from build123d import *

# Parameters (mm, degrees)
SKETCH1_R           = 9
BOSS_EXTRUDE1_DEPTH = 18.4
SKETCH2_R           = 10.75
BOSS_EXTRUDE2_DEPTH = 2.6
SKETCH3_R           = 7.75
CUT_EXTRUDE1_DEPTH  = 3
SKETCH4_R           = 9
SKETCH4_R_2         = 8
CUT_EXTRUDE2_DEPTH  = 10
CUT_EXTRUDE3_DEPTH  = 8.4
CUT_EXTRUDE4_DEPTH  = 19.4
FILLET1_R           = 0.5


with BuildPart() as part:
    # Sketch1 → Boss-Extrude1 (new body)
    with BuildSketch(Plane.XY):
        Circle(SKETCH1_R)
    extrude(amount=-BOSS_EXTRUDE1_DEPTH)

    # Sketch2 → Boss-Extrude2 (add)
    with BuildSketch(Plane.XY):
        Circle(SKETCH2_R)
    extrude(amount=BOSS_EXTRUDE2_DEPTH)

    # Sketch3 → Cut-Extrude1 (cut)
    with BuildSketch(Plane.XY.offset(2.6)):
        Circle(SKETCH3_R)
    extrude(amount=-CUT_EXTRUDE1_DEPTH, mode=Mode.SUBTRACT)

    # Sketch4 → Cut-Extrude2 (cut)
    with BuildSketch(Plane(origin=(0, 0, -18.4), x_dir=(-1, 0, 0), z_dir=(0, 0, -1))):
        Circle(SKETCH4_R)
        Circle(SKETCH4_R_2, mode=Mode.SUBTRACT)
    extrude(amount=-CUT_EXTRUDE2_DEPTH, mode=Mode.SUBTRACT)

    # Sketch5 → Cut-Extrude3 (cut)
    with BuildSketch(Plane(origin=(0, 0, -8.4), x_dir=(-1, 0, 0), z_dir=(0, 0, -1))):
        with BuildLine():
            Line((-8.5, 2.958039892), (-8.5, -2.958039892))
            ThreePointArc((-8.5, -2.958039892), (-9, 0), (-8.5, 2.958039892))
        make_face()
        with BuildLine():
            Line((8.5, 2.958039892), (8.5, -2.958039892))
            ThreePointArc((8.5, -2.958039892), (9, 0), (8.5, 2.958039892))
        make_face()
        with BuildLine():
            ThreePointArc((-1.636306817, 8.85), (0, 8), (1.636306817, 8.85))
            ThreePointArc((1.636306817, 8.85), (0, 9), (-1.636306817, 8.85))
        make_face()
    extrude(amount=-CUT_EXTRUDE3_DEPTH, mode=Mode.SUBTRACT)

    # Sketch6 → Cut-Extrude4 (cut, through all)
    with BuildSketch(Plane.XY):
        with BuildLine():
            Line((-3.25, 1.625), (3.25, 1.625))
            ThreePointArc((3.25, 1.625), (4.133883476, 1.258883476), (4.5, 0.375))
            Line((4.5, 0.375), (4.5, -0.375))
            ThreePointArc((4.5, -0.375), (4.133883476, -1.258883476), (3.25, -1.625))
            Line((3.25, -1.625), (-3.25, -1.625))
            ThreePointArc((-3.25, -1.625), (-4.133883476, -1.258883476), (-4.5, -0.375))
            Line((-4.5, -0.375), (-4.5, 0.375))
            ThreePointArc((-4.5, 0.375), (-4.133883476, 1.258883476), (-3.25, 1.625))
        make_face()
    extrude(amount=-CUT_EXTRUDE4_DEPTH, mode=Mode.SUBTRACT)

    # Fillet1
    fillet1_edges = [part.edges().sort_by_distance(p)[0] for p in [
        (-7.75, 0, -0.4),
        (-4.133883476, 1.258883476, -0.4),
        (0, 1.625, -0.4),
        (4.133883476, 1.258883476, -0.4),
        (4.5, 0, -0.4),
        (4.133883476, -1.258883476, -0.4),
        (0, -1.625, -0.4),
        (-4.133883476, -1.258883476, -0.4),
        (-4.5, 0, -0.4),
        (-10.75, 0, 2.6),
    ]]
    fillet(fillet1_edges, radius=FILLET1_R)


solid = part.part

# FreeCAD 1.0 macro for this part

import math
import FreeCAD as App
import Part
import Sketcher

V = App.Vector


def edges_at(feature, points):
    """Names of the edges that pass closest to the given points."""
    edges = feature.Shape.Edges
    near = lambda p: min(range(len(edges)), key=lambda i: edges[i].distToShape(Part.Vertex(*p))[0])
    return sorted({f"Edge{near(p) + 1}" for p in points})

doc = App.newDocument("Part")
body = doc.addObject("PartDesign::Body", "Body")

# Sketch on XY plane
sketch1 = body.newObject("Sketcher::SketchObject", "Sketch")
sketch1.AttachmentSupport = (doc.getObject("XY_Plane"), [""])
sketch1.MapMode = "FlatFace"
sketch1.addGeometry(Part.Circle(V(0, 0, 0), V(0, 0, 1), 9), False)
sketch1.addConstraint([
    Sketcher.Constraint("Coincident", 0, 3, -1, 1),
    Sketcher.Constraint("Diameter", 0, 18.0),
])
pad1 = body.newObject("PartDesign::Pad", "Pad")
pad1.Profile = sketch1
pad1.Length = 18.4
pad1.Reversed = True

# Sketch on XY plane
sketch2 = body.newObject("Sketcher::SketchObject", "Sketch001")
sketch2.AttachmentSupport = (doc.getObject("XY_Plane"), [""])
sketch2.MapMode = "FlatFace"
sketch2.addGeometry(Part.Circle(V(0, 0, 0), V(0, 0, 1), 10.75), False)
sketch2.addConstraint([
    Sketcher.Constraint("Coincident", 0, 3, -1, 1),
    Sketcher.Constraint("Diameter", 0, 21.5),
])
pad2 = body.newObject("PartDesign::Pad", "Pad001")
pad2.Profile = sketch2
pad2.Length = 2.6

# Sketch on XY plane
sketch3 = body.newObject("Sketcher::SketchObject", "Sketch002")
sketch3.AttachmentSupport = (doc.getObject("XY_Plane"), [""])
sketch3.MapMode = "FlatFace"
sketch3.AttachmentOffset = App.Placement(V(0, 0, 2.6), App.Rotation())
sketch3.addGeometry(Part.Circle(V(0, 0, 0), V(0, 0, 1), 7.75), False)
sketch3.addConstraint([
    Sketcher.Constraint("Coincident", 0, 3, -1, 1),
    Sketcher.Constraint("Diameter", 0, 15.5),
])
pocket1 = body.newObject("PartDesign::Pocket", "Pocket")
pocket1.Profile = sketch3
pocket1.Length = 3

# Sketch on XY plane
sketch4 = body.newObject("Sketcher::SketchObject", "Sketch003")
sketch4.AttachmentSupport = (doc.getObject("XY_Plane"), [""])
sketch4.MapMode = "FlatFace"
sketch4.AttachmentOffset = App.Placement(V(0, 0, -18.4), App.Rotation())
sketch4.addGeometry([
    Part.Circle(V(0, 0, 0), V(0, 0, 1), 9),
    Part.Circle(V(0, 0, 0), V(0, 0, 1), 8),
], False)
sketch4.addConstraint([
    Sketcher.Constraint("Coincident", 0, 3, -1, 1),
    Sketcher.Constraint("Coincident", 1, 3, -1, 1),
    Sketcher.Constraint("Diameter", 0, 18.0),
    Sketcher.Constraint("Diameter", 1, 16.0),
])
pocket2 = body.newObject("PartDesign::Pocket", "Pocket001")
pocket2.Profile = sketch4
pocket2.Length = 10
pocket2.Reversed = True

# Sketch on XY plane
sketch5 = body.newObject("Sketcher::SketchObject", "Sketch004")
sketch5.AttachmentSupport = (doc.getObject("XY_Plane"), [""])
sketch5.MapMode = "FlatFace"
sketch5.AttachmentOffset = App.Placement(V(0, 0, -8.4), App.Rotation())
sketch5.addGeometry([
    Part.LineSegment(V(8.5, -2.95804, 0), V(8.5, 2.95804, 0)),  # 0
    Part.ArcOfCircle(Part.Circle(V(0, 0, 0), V(0, 0, 1), 9), math.radians(-19.188136), math.radians(19.188136)),  # 1
    Part.LineSegment(V(-8.5, 2.95804, 0), V(-8.5, -2.95804, 0)),  # 2
    Part.ArcOfCircle(Part.Circle(V(0, 0, 0), V(0, 0, 1), 9), math.radians(160.811864), math.radians(199.188136)),  # 3
    Part.ArcOfCircle(Part.Circle(V(0, 10, 0), V(0, 0, 1), 2), math.radians(-144.900368), math.radians(-35.099632)),  # 4
    Part.ArcOfCircle(Part.Circle(V(0, 0, 0), V(0, 0, 1), 9), math.radians(79.524686), math.radians(100.475314)),  # 5
], False)
sketch5.addConstraint([
    Sketcher.Constraint("Coincident", 0, 1, 1, 1),
    Sketcher.Constraint("Coincident", 1, 2, 0, 2),
    Sketcher.Constraint("Coincident", 2, 1, 3, 1),
    Sketcher.Constraint("Coincident", 3, 2, 2, 2),
    Sketcher.Constraint("Coincident", 4, 1, 5, 2),
    Sketcher.Constraint("Coincident", 5, 1, 4, 2),
    Sketcher.Constraint("Vertical", 0),
    Sketcher.Constraint("Vertical", 2),
    Sketcher.Constraint("Coincident", 1, 3, -1, 1),
    Sketcher.Constraint("Coincident", 3, 3, -1, 1),
    Sketcher.Constraint("Coincident", 5, 3, -1, 1),
    Sketcher.Constraint("Equal", 1, 3),
    Sketcher.Constraint("Equal", 3, 5),
    Sketcher.Constraint("PointOnObject", 4, 3, -2),
    Sketcher.Constraint("Horizontal", 1, 2, 2, 1),
    Sketcher.Constraint("Radius", 1, 9.0),
    Sketcher.Constraint("Radius", 4, 2.0),
    Sketcher.Constraint("DistanceY", -1, 1, 4, 3, 10.0),
    Sketcher.Constraint("DistanceX", 2, 1, 1, 2, 17.0),
])
pocket3 = body.newObject("PartDesign::Pocket", "Pocket002")
pocket3.Profile = sketch5
pocket3.Length = 8.4
pocket3.Reversed = True

# Sketch on XY plane
sketch6 = body.newObject("Sketcher::SketchObject", "Sketch005")
sketch6.AttachmentSupport = (doc.getObject("XY_Plane"), [""])
sketch6.MapMode = "FlatFace"
sketch6.addGeometry([
    Part.LineSegment(V(3.25, 1.625, 0), V(-3.25, 1.625, 0)),  # 0
    Part.ArcOfCircle(Part.Circle(V(-3.25, 0.375, 0), V(0, 0, 1), 1.25), math.radians(90), math.radians(180)),  # 1
    Part.LineSegment(V(-4.5, 0.375, 0), V(-4.5, -0.375, 0)),  # 2
    Part.ArcOfCircle(Part.Circle(V(-3.25, -0.375, 0), V(0, 0, 1), 1.25), math.radians(-180), math.radians(-90)),  # 3
    Part.LineSegment(V(-3.25, -1.625, 0), V(3.25, -1.625, 0)),  # 4
    Part.ArcOfCircle(Part.Circle(V(3.25, -0.375, 0), V(0, 0, 1), 1.25), math.radians(-90), math.radians(0)),  # 5
    Part.LineSegment(V(4.5, -0.375, 0), V(4.5, 0.375, 0)),  # 6
    Part.ArcOfCircle(Part.Circle(V(3.25, 0.375, 0), V(0, 0, 1), 1.25), math.radians(0), math.radians(90)),  # 7
], False)
sketch6.addConstraint([
    Sketcher.Constraint("Tangent", 0, 2, 1, 1),
    Sketcher.Constraint("Tangent", 1, 2, 2, 1),
    Sketcher.Constraint("Tangent", 2, 2, 3, 1),
    Sketcher.Constraint("Tangent", 3, 2, 4, 1),
    Sketcher.Constraint("Tangent", 4, 2, 5, 1),
    Sketcher.Constraint("Tangent", 5, 2, 6, 1),
    Sketcher.Constraint("Tangent", 6, 2, 7, 1),
    Sketcher.Constraint("Tangent", 7, 2, 0, 1),
    Sketcher.Constraint("Horizontal", 0),
    Sketcher.Constraint("Vertical", 2),
    Sketcher.Constraint("Horizontal", 4),
    Sketcher.Constraint("Vertical", 6),
    Sketcher.Constraint("Equal", 1, 3),
    Sketcher.Constraint("Equal", 3, 5),
    Sketcher.Constraint("Equal", 5, 7),
    Sketcher.Constraint("Symmetric", 1, 3, 5, 3, -1, 1),
    Sketcher.Constraint("Radius", 1, 1.25),
    Sketcher.Constraint("DistanceX", 0, 2, 0, 1, 6.5),
    Sketcher.Constraint("DistanceY", 3, 3, 0, 2, 2.0),
])
pocket4 = body.newObject("PartDesign::Pocket", "Pocket003")
pocket4.Profile = sketch6
pocket4.Type = "ThroughAll"
doc.recompute()

fillet = body.newObject("PartDesign::Fillet", "Fillet")
fillet.Base = (pocket4, edges_at(pocket4, [
    (-7.75, 0, -0.4),
    (-4.134, 1.259, -0.4),
    (0, 1.625, -0.4),
    (4.134, 1.259, -0.4),
    (4.5, 0, -0.4),
    (4.134, -1.259, -0.4),
    (0, -1.625, -0.4),
    (-4.134, -1.259, -0.4),
    (-4.5, 0, -0.4),
    (-10.75, 0, 2.6),
]))
fillet.Radius = 0.5

doc.recompute()
